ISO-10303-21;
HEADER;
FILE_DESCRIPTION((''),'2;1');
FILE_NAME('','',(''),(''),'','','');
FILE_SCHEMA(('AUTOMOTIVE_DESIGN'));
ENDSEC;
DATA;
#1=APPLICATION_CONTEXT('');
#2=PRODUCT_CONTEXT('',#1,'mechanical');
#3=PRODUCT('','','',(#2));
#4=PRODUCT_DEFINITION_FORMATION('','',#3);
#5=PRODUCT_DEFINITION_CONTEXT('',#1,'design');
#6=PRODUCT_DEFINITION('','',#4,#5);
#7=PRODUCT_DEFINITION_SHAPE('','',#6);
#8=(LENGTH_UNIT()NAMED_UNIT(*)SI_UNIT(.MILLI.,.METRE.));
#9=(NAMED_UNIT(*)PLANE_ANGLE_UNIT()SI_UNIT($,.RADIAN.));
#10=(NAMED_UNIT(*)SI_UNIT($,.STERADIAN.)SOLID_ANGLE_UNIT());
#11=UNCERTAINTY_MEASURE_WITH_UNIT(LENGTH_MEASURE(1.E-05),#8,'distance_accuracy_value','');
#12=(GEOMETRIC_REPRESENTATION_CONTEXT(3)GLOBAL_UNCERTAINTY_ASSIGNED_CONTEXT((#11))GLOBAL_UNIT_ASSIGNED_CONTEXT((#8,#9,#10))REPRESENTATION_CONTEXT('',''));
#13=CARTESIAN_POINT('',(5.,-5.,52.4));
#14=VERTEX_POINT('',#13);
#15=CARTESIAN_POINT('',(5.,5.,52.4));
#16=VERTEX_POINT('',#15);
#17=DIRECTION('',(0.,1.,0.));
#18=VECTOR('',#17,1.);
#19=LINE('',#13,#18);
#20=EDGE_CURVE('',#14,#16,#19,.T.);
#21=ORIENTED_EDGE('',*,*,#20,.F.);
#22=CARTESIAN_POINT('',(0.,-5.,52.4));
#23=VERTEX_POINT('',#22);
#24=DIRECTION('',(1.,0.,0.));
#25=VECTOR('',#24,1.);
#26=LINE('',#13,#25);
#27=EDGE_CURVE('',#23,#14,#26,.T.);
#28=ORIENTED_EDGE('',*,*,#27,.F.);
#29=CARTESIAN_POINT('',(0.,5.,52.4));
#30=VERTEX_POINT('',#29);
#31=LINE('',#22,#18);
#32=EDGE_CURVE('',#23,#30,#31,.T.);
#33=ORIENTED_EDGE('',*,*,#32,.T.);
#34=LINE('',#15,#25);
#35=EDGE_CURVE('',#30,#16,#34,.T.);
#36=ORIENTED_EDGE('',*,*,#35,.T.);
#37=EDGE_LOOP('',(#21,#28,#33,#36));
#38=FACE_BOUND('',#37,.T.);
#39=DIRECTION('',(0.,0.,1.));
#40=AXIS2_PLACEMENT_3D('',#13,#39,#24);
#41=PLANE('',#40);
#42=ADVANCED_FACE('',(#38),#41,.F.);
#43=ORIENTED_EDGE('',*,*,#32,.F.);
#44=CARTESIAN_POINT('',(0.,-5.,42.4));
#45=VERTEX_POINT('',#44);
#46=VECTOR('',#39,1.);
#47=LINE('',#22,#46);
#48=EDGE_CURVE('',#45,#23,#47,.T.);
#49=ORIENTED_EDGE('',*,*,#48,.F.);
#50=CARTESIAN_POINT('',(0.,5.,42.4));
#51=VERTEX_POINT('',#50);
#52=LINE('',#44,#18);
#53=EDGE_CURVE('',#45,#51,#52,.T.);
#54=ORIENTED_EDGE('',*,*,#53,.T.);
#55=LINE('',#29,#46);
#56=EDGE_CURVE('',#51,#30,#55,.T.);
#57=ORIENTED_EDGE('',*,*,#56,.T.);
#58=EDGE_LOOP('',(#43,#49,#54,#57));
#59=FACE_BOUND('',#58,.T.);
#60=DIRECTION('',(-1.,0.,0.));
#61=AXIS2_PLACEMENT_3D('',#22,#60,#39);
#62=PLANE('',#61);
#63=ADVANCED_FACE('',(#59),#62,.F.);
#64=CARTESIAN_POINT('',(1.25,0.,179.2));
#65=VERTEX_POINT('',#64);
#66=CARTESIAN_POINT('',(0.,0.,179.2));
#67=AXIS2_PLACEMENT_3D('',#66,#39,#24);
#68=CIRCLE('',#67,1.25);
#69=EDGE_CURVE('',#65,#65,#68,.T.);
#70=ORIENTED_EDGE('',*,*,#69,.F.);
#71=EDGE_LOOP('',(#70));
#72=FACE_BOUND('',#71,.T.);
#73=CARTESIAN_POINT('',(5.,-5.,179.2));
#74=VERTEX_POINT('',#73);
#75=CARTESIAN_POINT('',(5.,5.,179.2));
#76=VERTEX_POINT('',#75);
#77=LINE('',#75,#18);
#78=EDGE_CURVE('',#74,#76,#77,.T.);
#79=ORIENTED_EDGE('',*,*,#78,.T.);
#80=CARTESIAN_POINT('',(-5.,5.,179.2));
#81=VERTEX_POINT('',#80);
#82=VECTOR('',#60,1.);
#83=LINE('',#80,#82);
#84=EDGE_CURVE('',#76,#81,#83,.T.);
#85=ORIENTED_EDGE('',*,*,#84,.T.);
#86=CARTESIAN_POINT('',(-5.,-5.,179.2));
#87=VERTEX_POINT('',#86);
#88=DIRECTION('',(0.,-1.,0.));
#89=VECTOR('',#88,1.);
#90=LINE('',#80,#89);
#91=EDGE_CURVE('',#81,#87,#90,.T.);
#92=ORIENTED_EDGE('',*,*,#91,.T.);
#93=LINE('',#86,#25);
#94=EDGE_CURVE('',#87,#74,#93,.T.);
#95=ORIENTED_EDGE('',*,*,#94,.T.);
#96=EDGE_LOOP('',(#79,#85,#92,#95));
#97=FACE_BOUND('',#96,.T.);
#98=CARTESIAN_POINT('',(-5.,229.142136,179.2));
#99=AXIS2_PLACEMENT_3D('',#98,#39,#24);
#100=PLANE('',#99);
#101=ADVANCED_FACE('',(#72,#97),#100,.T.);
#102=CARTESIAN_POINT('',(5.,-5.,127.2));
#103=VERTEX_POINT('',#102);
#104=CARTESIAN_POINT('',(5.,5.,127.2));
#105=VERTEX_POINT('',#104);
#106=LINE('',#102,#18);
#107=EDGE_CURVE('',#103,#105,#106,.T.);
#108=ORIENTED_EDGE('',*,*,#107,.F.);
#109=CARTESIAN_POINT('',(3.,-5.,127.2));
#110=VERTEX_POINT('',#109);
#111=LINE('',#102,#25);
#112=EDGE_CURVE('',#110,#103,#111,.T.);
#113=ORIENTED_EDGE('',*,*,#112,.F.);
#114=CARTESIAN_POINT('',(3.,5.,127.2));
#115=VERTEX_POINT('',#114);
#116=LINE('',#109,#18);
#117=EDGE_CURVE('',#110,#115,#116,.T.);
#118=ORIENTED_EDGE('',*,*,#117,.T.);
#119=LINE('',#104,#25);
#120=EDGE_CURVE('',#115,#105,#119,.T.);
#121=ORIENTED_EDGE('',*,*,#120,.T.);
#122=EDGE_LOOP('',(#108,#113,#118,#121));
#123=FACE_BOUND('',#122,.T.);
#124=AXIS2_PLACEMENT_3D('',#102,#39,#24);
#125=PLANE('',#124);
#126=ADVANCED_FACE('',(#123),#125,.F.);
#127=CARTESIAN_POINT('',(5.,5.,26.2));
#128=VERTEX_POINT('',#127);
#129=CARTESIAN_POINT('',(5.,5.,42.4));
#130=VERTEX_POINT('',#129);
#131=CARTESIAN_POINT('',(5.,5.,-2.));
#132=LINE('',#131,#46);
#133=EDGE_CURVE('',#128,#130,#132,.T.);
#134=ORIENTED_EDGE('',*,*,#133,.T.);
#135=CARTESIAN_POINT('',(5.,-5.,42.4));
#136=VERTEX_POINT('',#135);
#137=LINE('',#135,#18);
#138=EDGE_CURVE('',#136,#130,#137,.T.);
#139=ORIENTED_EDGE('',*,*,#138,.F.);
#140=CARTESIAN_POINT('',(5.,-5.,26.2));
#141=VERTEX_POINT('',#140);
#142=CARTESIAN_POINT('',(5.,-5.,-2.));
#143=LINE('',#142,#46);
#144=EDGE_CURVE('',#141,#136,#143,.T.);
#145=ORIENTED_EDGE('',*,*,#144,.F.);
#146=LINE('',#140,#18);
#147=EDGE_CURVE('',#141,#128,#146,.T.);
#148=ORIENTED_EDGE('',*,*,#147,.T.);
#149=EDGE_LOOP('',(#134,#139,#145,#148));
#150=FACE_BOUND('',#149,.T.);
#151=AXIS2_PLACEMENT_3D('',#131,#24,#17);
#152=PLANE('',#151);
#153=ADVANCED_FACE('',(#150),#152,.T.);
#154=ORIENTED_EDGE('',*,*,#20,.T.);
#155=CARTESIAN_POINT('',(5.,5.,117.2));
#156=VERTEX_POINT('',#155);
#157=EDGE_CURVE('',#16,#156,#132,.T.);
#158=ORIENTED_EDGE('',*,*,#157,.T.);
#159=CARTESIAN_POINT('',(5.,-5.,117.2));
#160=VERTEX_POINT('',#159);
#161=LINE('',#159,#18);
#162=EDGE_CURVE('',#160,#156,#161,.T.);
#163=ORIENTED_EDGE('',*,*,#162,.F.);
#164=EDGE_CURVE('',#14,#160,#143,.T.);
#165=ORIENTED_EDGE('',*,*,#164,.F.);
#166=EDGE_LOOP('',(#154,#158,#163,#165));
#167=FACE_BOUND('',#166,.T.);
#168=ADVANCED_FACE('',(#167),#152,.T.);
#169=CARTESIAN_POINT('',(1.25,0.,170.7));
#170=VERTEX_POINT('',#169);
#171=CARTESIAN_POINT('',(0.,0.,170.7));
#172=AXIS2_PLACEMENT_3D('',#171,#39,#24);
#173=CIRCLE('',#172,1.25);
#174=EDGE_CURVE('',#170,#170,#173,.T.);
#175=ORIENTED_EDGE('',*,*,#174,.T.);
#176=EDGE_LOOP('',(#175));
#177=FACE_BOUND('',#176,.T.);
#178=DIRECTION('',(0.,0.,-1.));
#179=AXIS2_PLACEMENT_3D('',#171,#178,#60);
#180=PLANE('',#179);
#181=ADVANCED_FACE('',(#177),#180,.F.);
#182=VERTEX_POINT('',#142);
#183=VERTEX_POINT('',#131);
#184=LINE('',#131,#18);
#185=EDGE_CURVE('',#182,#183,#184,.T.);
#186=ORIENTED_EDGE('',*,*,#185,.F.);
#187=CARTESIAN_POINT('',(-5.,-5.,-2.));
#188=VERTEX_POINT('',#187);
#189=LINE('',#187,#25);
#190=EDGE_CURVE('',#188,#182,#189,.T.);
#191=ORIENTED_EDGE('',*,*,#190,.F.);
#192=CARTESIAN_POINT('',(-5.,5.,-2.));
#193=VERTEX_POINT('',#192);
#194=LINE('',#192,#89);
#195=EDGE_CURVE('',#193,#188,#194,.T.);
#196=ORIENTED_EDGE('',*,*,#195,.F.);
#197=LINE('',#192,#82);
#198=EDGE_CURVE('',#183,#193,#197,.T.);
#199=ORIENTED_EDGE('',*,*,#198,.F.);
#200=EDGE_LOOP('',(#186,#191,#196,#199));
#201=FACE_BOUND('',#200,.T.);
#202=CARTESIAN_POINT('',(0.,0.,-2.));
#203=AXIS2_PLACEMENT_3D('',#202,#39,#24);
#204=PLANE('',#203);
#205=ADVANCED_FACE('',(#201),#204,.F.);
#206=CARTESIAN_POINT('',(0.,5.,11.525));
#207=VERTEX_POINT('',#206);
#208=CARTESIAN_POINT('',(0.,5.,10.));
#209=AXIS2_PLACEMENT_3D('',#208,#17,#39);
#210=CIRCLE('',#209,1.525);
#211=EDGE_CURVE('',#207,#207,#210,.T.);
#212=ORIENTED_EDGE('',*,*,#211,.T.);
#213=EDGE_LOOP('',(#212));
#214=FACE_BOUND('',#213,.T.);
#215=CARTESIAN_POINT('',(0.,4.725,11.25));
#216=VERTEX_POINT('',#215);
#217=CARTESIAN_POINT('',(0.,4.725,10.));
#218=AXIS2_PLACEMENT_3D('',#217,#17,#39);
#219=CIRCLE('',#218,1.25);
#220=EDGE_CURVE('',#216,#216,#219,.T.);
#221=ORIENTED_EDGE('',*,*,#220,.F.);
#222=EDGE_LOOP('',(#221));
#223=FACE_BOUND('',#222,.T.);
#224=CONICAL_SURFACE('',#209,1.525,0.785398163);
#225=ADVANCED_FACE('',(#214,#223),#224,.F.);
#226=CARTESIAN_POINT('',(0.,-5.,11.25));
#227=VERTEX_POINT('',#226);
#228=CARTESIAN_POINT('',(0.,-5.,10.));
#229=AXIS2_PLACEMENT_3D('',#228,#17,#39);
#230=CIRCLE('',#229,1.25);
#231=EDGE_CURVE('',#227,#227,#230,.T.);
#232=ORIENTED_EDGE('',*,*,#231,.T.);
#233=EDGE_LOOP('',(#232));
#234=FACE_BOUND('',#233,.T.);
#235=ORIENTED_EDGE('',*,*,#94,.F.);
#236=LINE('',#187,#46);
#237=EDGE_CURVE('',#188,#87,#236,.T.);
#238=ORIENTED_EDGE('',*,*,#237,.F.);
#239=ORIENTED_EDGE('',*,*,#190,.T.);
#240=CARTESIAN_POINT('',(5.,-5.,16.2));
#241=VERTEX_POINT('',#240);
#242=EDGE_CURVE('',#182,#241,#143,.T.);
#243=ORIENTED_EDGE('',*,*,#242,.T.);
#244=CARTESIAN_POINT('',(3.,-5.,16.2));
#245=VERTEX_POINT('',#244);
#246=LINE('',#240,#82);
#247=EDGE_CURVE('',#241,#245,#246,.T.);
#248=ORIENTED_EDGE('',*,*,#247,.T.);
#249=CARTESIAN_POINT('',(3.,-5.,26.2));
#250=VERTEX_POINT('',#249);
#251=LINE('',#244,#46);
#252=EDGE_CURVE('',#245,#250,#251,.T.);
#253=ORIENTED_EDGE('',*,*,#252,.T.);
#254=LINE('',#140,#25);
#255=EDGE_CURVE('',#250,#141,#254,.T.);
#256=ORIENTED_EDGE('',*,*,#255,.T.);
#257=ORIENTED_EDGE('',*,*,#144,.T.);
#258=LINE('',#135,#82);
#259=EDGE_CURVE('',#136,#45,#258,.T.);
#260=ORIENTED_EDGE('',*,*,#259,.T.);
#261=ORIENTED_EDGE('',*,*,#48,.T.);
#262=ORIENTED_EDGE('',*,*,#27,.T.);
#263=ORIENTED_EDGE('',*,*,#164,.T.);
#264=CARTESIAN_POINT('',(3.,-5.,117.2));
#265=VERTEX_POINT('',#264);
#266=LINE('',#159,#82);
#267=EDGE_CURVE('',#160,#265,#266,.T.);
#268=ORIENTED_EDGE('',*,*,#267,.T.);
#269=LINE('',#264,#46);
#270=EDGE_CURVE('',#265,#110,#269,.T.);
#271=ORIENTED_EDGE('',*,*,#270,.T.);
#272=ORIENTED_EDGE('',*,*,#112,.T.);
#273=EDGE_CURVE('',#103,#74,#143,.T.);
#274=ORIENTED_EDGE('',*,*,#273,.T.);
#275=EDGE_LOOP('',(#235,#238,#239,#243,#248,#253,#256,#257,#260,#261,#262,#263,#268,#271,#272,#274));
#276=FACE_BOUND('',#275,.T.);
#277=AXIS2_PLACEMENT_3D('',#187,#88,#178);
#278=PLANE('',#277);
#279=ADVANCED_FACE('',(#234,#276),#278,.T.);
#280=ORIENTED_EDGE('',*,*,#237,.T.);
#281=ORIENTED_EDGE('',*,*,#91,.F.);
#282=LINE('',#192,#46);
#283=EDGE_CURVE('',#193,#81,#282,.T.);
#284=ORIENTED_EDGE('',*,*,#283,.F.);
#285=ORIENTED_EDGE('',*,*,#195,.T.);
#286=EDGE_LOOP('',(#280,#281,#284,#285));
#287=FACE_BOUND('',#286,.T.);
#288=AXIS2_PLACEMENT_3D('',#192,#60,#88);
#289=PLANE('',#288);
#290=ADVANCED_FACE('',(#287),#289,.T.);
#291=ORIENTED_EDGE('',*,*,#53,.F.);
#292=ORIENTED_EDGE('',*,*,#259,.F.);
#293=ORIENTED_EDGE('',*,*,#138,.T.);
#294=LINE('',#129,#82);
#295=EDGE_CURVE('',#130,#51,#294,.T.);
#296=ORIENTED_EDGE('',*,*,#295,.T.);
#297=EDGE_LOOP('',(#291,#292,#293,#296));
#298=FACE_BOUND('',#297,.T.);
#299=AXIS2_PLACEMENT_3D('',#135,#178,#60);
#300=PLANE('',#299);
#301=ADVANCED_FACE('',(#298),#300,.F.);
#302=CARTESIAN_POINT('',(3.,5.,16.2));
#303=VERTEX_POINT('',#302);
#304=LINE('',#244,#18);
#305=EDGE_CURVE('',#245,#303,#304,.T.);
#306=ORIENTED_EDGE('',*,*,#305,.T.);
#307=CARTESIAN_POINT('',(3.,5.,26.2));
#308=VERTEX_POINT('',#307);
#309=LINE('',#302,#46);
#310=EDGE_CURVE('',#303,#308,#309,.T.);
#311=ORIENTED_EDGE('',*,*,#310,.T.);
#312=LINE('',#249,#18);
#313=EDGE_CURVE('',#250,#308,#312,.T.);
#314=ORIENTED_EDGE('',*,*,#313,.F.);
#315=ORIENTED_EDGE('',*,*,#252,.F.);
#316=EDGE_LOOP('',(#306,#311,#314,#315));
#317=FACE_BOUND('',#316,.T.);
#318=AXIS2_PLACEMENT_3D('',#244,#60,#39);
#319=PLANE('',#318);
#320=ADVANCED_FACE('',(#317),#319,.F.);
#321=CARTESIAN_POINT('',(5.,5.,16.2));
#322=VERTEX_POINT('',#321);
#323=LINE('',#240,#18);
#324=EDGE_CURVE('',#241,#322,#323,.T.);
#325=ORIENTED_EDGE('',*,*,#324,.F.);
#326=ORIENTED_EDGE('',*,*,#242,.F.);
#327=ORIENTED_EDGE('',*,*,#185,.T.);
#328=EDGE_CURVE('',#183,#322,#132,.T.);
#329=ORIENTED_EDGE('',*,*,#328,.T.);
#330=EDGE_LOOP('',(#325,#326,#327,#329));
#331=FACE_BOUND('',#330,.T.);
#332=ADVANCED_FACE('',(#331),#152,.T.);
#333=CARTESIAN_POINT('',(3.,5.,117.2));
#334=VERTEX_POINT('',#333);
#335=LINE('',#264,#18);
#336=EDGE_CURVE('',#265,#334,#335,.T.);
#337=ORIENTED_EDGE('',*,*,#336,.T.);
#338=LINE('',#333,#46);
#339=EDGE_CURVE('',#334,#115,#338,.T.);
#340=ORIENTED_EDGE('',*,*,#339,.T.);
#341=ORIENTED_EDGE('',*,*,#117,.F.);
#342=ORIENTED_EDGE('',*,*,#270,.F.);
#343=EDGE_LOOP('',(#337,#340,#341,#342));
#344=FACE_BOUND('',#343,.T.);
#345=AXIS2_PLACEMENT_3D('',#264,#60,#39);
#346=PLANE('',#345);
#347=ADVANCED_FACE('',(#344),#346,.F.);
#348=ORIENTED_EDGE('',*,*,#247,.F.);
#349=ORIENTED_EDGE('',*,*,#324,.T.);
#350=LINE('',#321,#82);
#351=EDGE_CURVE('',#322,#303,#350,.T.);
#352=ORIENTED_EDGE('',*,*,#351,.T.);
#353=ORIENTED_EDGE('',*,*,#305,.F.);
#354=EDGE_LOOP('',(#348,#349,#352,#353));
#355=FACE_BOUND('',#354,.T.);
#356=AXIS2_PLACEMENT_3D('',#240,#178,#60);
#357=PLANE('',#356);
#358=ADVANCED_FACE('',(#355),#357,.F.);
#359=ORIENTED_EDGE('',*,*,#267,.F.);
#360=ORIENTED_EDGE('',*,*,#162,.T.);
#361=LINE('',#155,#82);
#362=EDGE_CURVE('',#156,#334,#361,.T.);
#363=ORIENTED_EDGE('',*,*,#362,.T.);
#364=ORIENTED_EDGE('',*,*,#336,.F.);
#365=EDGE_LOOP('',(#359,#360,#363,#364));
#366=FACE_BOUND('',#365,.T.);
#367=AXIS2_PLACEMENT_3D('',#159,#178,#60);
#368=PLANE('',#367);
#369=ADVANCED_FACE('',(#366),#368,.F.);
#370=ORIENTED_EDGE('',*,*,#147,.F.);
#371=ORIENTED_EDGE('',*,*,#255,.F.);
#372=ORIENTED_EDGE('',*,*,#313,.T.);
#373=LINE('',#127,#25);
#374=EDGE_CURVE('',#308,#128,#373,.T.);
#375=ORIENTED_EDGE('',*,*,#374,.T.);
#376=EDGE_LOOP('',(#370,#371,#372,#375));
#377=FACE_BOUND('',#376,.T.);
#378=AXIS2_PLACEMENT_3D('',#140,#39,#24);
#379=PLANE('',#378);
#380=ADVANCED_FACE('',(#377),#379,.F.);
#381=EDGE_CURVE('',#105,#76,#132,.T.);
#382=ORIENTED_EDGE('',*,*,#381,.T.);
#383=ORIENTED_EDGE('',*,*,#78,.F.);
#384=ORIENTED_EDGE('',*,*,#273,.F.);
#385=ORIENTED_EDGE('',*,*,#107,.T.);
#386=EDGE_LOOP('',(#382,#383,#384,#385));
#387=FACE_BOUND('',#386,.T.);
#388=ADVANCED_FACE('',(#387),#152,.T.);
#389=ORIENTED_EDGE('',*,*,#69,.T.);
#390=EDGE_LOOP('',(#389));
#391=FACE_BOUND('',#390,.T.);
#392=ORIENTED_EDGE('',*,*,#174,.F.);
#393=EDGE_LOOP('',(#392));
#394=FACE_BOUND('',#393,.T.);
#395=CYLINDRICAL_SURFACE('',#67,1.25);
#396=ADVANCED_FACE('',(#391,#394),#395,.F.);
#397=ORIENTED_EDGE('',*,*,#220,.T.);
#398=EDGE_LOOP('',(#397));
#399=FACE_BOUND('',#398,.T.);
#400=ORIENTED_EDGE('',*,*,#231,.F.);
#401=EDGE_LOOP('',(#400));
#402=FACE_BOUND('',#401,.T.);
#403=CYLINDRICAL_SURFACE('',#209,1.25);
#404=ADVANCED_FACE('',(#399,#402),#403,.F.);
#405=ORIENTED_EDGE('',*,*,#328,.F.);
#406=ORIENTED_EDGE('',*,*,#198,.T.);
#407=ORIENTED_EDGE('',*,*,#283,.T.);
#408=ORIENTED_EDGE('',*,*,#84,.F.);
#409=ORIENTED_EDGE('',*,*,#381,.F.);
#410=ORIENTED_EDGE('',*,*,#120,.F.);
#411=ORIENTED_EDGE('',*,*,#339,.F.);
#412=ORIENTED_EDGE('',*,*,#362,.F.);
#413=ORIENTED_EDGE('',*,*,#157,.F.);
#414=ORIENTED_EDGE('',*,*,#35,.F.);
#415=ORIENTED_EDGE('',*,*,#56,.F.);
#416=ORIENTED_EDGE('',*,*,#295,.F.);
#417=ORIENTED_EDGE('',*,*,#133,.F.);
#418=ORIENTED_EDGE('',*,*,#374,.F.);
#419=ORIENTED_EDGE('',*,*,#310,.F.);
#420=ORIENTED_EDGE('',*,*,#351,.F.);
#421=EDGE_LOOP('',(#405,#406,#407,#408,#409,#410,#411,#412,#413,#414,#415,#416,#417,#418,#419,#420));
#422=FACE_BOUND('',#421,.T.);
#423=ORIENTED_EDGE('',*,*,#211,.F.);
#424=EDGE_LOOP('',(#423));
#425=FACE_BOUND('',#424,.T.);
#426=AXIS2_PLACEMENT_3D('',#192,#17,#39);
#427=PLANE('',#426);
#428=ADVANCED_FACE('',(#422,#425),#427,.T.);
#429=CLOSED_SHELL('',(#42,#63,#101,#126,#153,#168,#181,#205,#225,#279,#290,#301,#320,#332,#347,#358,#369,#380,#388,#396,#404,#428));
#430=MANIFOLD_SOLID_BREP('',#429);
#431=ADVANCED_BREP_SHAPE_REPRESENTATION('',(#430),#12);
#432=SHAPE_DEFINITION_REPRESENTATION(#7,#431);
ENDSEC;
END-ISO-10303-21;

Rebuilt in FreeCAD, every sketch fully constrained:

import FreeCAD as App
import Part
import Sketcher
from FreeCAD import Vector
Q = App.Units.Quantity

doc = App.newDocument("Part")
body = doc.addObject("PartDesign::Body", "Body")

sketch1 = body.newObject("Sketcher::SketchObject", "Sketch")
sketch1.AttachmentSupport = (doc.getObject("XY_Plane"), [""])
sketch1.MapMode = "FlatFace"
sketch1.addGeometry([
    Part.LineSegment(Vector(-5, 5, 0), Vector(-5, -5, 0)),
    Part.LineSegment(Vector(-5, -5, 0), Vector(5, -5, 0)),
    Part.LineSegment(Vector(5, -5, 0), Vector(5, 5, 0)),
    Part.LineSegment(Vector(5, 5, 0), Vector(-5, 5, 0)),
], False)
sketch1.addConstraint([
    Sketcher.Constraint("Coincident", 0, 2, 1, 1),
    Sketcher.Constraint("Coincident", 1, 2, 2, 1),
    Sketcher.Constraint("Coincident", 2, 2, 3, 1),
    Sketcher.Constraint("Coincident", 3, 2, 0, 1),
    Sketcher.Constraint("Vertical", 0),
    Sketcher.Constraint("Horizontal", 1),
    Sketcher.Constraint("Vertical", 2),
    Sketcher.Constraint("Horizontal", 3),
    Sketcher.Constraint("Symmetric", 0, 2, 2, 2, -1, 1),
    Sketcher.Constraint("Equal", 3, 0),
    Sketcher.Constraint("DistanceX", 1, 1, 1, 2, Q("10 mm")),
])
pad1 = body.newObject("PartDesign::Pad", "Pad")
pad1.Profile = sketch1
pad1.Type = "TwoLengths"
pad1.Length = 179.2
pad1.Length2 = 2

sketch2 = body.newObject("Sketcher::SketchObject", "Sketch001")
sketch2.AttachmentSupport = (doc.getObject("XZ_Plane"), [""])
sketch2.MapMode = "FlatFace"
sketch2.AttachmentOffset = App.Placement(Vector(0, 0, -5), App.Rotation())
sketch2.addGeometry([
    Part.LineSegment(Vector(3, 117.2, 0), Vector(3, 127.2, 0)),
    Part.LineSegment(Vector(3, 127.2, 0), Vector(5, 127.2, 0)),
    Part.LineSegment(Vector(5, 127.2, 0), Vector(5, 117.2, 0)),
    Part.LineSegment(Vector(5, 117.2, 0), Vector(3, 117.2, 0)),
    Part.LineSegment(Vector(3, 16.2, 0), Vector(3, 26.2, 0)),
    Part.LineSegment(Vector(3, 26.2, 0), Vector(5, 26.2, 0)),
    Part.LineSegment(Vector(5, 26.2, 0), Vector(5, 16.2, 0)),
    Part.LineSegment(Vector(5, 16.2, 0), Vector(3, 16.2, 0)),
    Part.LineSegment(Vector(0, 42.4, 0), Vector(0, 52.4, 0)),
    Part.LineSegment(Vector(0, 52.4, 0), Vector(5, 52.4, 0)),
    Part.LineSegment(Vector(5, 52.4, 0), Vector(5, 42.4, 0)),
    Part.LineSegment(Vector(5, 42.4, 0), Vector(0, 42.4, 0)),
], False)
sketch2.addConstraint([
    Sketcher.Constraint("Coincident", 0, 2, 1, 1),
    Sketcher.Constraint("Coincident", 1, 2, 2, 1),
    Sketcher.Constraint("Coincident", 2, 2, 3, 1),
    Sketcher.Constraint("Coincident", 3, 2, 0, 1),
    Sketcher.Constraint("Coincident", 4, 2, 5, 1),
    Sketcher.Constraint("Coincident", 5, 2, 6, 1),
    Sketcher.Constraint("Coincident", 6, 2, 7, 1),
    Sketcher.Constraint("Coincident", 7, 2, 4, 1),
    Sketcher.Constraint("Coincident", 8, 2, 9, 1),
    Sketcher.Constraint("Coincident", 9, 2, 10, 1),
    Sketcher.Constraint("Coincident", 10, 2, 11, 1),
    Sketcher.Constraint("Coincident", 11, 2, 8, 1),
    Sketcher.Constraint("Vertical", 0),
    Sketcher.Constraint("Horizontal", 1),
    Sketcher.Constraint("Vertical", 2),
    Sketcher.Constraint("Horizontal", 3),
    Sketcher.Constraint("Vertical", 4),
    Sketcher.Constraint("Horizontal", 5),
    Sketcher.Constraint("Vertical", 6),
    Sketcher.Constraint("Horizontal", 7),
    Sketcher.Constraint("Vertical", 8),
    Sketcher.Constraint("Horizontal", 9),
    Sketcher.Constraint("Vertical", 10),
    Sketcher.Constraint("Horizontal", 11),
    Sketcher.Constraint("PointOnObject", 8, 2, -2),
    Sketcher.Constraint("Vertical", 3, 2, 4, 2),
    Sketcher.Constraint("Vertical", 2, 2, 5, 2),
    Sketcher.Constraint("Vertical", 6, 2, 9, 2),
    Sketcher.Constraint("Equal", 2, 4),
    Sketcher.Constraint("Equal", 6, 8),
    Sketcher.Constraint("DistanceX", 1, 1, 1, 2, Q("2 mm")),
    Sketcher.Constraint("DistanceX", 9, 1, 9, 2, Q("5 mm")),
    Sketcher.Constraint("DistanceY", 0, 1, 0, 2, Q("10 mm")),
    Sketcher.Constraint("DistanceY", 4, 2, 3, 2, Q("91 mm")),
    Sketcher.Constraint("DistanceY", -1, 1, 0, 2, Q("127.2 mm")),
    Sketcher.Constraint("DistanceY", -1, 1, 8, 2, Q("52.4 mm")),
])
pocket1 = body.newObject("PartDesign::Pocket", "Pocket")
pocket1.Profile = sketch2
pocket1.Type = "ThroughAll"
pocket1.Reversed = True

sketch3 = body.newObject("Sketcher::SketchObject", "Sketch002")
sketch3.AttachmentSupport = (doc.getObject("XZ_Plane"), [""])
sketch3.MapMode = "FlatFace"
sketch3.AttachmentOffset = App.Placement(Vector(0, 0, -5), App.Rotation())
sketch3.addGeometry(Part.Circle(Vector(0, 10, 0), Vector(0, 0, 1), 1.25), False)
sketch3.addConstraint([
    Sketcher.Constraint("PointOnObject", 0, 3, -2),
    Sketcher.Constraint("Diameter", 0, Q("2.5 mm")),
    Sketcher.Constraint("DistanceY", -1, 1, 0, 3, Q("10 mm")),
])
doc.recompute()
hole = body.newObject("PartDesign::Hole", "Hole")
hole.Profile = sketch3
hole.ThreadType = "None"
hole.Diameter = 2.5
hole.DepthType = "ThroughAll"
hole.HoleCutType = "Countersink"
hole.HoleCutDiameter = 3.05
hole.HoleCutCountersinkAngle = 90
hole.Reversed = True

sketch4 = body.newObject("Sketcher::SketchObject", "Sketch003")
sketch4.AttachmentSupport = (doc.getObject("XY_Plane"), [""])
sketch4.MapMode = "FlatFace"
sketch4.AttachmentOffset = App.Placement(Vector(0, 0, 179.2), App.Rotation())
sketch4.addGeometry(Part.Circle(Vector(0, 0, 0), Vector(0, 0, 1), 1.25), False)
sketch4.addConstraint([
    Sketcher.Constraint("Coincident", 0, 3, -1, 1),
    Sketcher.Constraint("Diameter", 0, Q("2.5 mm")),
])
doc.recompute()
hole2 = body.newObject("PartDesign::Hole", "Hole001")
hole2.Profile = sketch4
hole2.ThreadType = "None"
hole2.Diameter = 2.5
hole2.DepthType = "Dimension"
hole2.Depth = 8.5
hole2.DrillPoint = "Flat"

doc.recompute()
